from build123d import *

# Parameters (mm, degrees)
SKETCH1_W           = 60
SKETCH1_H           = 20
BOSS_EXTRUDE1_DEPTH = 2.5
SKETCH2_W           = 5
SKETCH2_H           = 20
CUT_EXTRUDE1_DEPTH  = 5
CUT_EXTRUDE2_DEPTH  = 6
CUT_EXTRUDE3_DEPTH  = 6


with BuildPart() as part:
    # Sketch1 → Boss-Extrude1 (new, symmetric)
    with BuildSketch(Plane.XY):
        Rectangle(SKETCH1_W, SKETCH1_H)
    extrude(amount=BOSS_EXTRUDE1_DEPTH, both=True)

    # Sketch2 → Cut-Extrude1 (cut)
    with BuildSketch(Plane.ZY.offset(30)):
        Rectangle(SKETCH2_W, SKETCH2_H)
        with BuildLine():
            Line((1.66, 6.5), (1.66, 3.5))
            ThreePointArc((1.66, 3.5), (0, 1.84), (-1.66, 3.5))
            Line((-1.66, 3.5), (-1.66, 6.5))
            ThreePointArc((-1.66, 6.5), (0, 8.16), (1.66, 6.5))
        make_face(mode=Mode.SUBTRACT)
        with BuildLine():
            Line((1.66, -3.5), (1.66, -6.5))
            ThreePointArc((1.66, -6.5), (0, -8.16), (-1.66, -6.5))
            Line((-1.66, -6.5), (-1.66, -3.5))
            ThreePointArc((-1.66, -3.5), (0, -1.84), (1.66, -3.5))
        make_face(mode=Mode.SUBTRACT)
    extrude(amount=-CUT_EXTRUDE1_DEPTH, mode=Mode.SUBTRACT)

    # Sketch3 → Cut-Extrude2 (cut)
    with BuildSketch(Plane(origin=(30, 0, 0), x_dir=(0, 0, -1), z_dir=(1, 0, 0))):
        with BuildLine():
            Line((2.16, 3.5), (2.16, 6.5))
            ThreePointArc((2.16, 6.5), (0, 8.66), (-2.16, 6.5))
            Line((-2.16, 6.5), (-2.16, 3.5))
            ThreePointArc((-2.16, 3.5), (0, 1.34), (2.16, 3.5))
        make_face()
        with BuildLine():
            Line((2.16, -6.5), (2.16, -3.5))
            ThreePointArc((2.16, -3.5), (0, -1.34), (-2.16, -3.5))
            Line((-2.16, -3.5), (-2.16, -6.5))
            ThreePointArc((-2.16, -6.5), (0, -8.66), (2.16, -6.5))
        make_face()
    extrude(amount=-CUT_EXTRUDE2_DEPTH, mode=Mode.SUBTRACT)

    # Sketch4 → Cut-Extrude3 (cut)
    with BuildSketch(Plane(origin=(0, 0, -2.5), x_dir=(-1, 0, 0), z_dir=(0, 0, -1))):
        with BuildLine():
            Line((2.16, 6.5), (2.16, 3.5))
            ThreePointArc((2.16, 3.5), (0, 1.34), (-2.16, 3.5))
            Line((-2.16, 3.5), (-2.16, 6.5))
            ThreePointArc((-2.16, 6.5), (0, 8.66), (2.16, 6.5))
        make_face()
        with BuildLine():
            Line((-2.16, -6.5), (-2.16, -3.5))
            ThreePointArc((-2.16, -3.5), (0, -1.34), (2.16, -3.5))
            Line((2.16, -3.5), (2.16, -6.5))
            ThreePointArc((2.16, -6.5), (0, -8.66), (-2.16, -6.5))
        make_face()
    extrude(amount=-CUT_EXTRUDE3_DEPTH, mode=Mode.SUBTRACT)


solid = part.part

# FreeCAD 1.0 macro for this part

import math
import FreeCAD as App
import Part
import Sketcher
Q = App.Units.Quantity


def add_polygon(sketch, points):
    """Adds a closed chain of lines whose ends are joined by coincident constraints."""
    first, n = sketch.GeometryCount, len(points)
    for a, b in zip(points, points[1:] + points[:1]):
        sketch.addGeometry(Part.LineSegment(App.Vector(*a, 0), App.Vector(*b, 0)), False)
    for i in range(n):
        sketch.addConstraint(Sketcher.Constraint("Coincident", first + i, 2, first + (i + 1) % n, 1))

doc = App.newDocument("Part")
params = doc.addObject("Spreadsheet::Sheet", "Params")
for row, (alias, value) in enumerate([
    ("sketch1_width", "60 mm"),
    ("sketch1_height", "20 mm"),
    ("pad1_length", "5 mm"),
    ("sketch2_width", "20 mm"),
    ("sketch2_width2", "3 mm"),
    ("sketch2_height", "5 mm"),
    ("sketch2_radius", "1.66 mm"),
    ("pocket1_length", "5 mm"),
    ("sketch3_width", "3 mm"),
    ("sketch3_radius", "2.16 mm"),
    ("pocket2_length", "6 mm"),
    ("sketch4_height", "3 mm"),
    ("sketch4_radius", "2.16 mm"),
    ("pocket3_length", "6 mm"),
], start=1):
    params.set(f"A{row}", alias)
    params.set(f"B{row}", "=" + value)
    params.setAlias(f"B{row}", alias)

body = doc.addObject("PartDesign::Body", "Body")

# Sketch on XY plane
sketch1 = body.newObject("Sketcher::SketchObject", "Sketch")
sketch1.AttachmentSupport = (doc.getObject("XY_Plane"), [""])
sketch1.MapMode = "FlatFace"
add_polygon(sketch1, [(-30, 10), (-30, -10), (30, -10), (30, 10)])  # lines 0-3
sketch1.addConstraint(Sketcher.Constraint("Vertical", 0))
sketch1.addConstraint(Sketcher.Constraint("Horizontal", 1))
sketch1.addConstraint(Sketcher.Constraint("Vertical", 2))
sketch1.addConstraint(Sketcher.Constraint("Horizontal", 3))
sketch1.addConstraint(Sketcher.Constraint("Symmetric", 0, 2, 2, 2, -1, 1))
sketch1.addConstraint(Sketcher.Constraint("DistanceX", 1, 1, 1, 2, Q("60 mm")))
sketch1.addConstraint(Sketcher.Constraint("DistanceY", 0, 2, 0, 1, Q("20 mm")))
sketch1.setExpression("Constraints[9]", "Params.sketch1_width")
sketch1.setExpression("Constraints[10]", "Params.sketch1_height")
pad1 = body.newObject("PartDesign::Pad", "Pad")
pad1.Profile = sketch1
pad1.setExpression("Length", "Params.pad1_length")
pad1.Midplane = True

# Sketch on YZ plane
sketch2 = body.newObject("Sketcher::SketchObject", "Sketch001")
sketch2.AttachmentSupport = (doc.getObject("YZ_Plane"), [""])
sketch2.MapMode = "FlatFace"
sketch2.AttachmentOffset = App.Placement(App.Vector(0, 0, -30), App.Rotation())
add_polygon(sketch2, [(10, -2.5), (-10, -2.5), (-10, 2.5), (10, 2.5)])  # lines 0-3
sketch2.addGeometry(Part.ArcOfCircle(Part.Circle(App.Vector(-3.5, 0, 0), App.Vector(0, 0, 1), 1.7), math.radians(-90), math.radians(90)), False)  # 4
sketch2.addGeometry(Part.LineSegment(App.Vector(-3.5, 1.7, 0), App.Vector(-6.5, 1.7, 0)), False)  # 5
sketch2.addGeometry(Part.ArcOfCircle(Part.Circle(App.Vector(-6.5, 0, 0), App.Vector(0, 0, 1), 1.7), math.radians(90), math.radians(270)), False)  # 6
sketch2.addGeometry(Part.LineSegment(App.Vector(-6.5, -1.7, 0), App.Vector(-3.5, -1.7, 0)), False)  # 7
sketch2.addGeometry(Part.ArcOfCircle(Part.Circle(App.Vector(6.5, 0, 0), App.Vector(0, 0, 1), 1.7), math.radians(-90), math.radians(90)), False)  # 8
sketch2.addGeometry(Part.LineSegment(App.Vector(6.5, 1.7, 0), App.Vector(3.5, 1.7, 0)), False)  # 9
sketch2.addGeometry(Part.ArcOfCircle(Part.Circle(App.Vector(3.5, 0, 0), App.Vector(0, 0, 1), 1.7), math.radians(90), math.radians(270)), False)  # 10
sketch2.addGeometry(Part.LineSegment(App.Vector(3.5, -1.7, 0), App.Vector(6.5, -1.7, 0)), False)  # 11
sketch2.addConstraint(Sketcher.Constraint("Tangent", 4, 2, 5, 1))
sketch2.addConstraint(Sketcher.Constraint("Tangent", 5, 2, 6, 1))
sketch2.addConstraint(Sketcher.Constraint("Tangent", 6, 2, 7, 1))
sketch2.addConstraint(Sketcher.Constraint("Tangent", 7, 2, 4, 1))
sketch2.addConstraint(Sketcher.Constraint("Tangent", 8, 2, 9, 1))
sketch2.addConstraint(Sketcher.Constraint("Tangent", 9, 2, 10, 1))
sketch2.addConstraint(Sketcher.Constraint("Tangent", 10, 2, 11, 1))
sketch2.addConstraint(Sketcher.Constraint("Tangent", 11, 2, 8, 1))
sketch2.addConstraint(Sketcher.Constraint("Horizontal", 0))
sketch2.addConstraint(Sketcher.Constraint("Vertical", 1))
sketch2.addConstraint(Sketcher.Constraint("Horizontal", 2))
sketch2.addConstraint(Sketcher.Constraint("Vertical", 3))
sketch2.addConstraint(Sketcher.Constraint("Horizontal", 5))
sketch2.addConstraint(Sketcher.Constraint("Horizontal", 7))
sketch2.addConstraint(Sketcher.Constraint("Horizontal", 9))
sketch2.addConstraint(Sketcher.Constraint("Horizontal", 11))
sketch2.addConstraint(Sketcher.Constraint("Equal", 6, 8))
sketch2.addConstraint(Sketcher.Constraint("Symmetric", 6, 3, 8, 3, -1, 1))
sketch2.addConstraint(Sketcher.Constraint("Symmetric", 0, 2, 2, 2, -1, 1))
sketch2.addConstraint(Sketcher.Constraint("Symmetric", 4, 3, 10, 3, -2))
sketch2.addConstraint(Sketcher.Constraint("DistanceX", 0, 2, 0, 1, Q("20 mm")))
sketch2.addConstraint(Sketcher.Constraint("DistanceX", 5, 2, 5, 1, Q("3 mm")))
sketch2.addConstraint(Sketcher.Constraint("DistanceY", 1, 1, 1, 2, Q("5 mm")))
sketch2.addConstraint(Sketcher.Constraint("Radius", 4, Q("1.66 mm")))
sketch2.addConstraint(Sketcher.Constraint("DistanceX", 4, 3, 8, 3, Q("10 mm")))
sketch2.setExpression("Constraints[24]", "Params.sketch2_width")
sketch2.setExpression("Constraints[25]", "Params.sketch2_width2")
sketch2.setExpression("Constraints[26]", "Params.sketch2_height")
sketch2.setExpression("Constraints[27]", "Params.sketch2_radius")
pocket1 = body.newObject("PartDesign::Pocket", "Pocket")
pocket1.Profile = sketch2
pocket1.setExpression("Length", "Params.pocket1_length")
pocket1.Reversed = True

# Sketch on YZ plane
sketch3 = body.newObject("Sketcher::SketchObject", "Sketch002")
sketch3.AttachmentSupport = (doc.getObject("YZ_Plane"), [""])
sketch3.MapMode = "FlatFace"
sketch3.AttachmentOffset = App.Placement(App.Vector(0, 0, 30), App.Rotation())
sketch3.addGeometry(Part.LineSegment(App.Vector(3.5, -2.2, 0), App.Vector(6.5, -2.2, 0)), False)
sketch3.addGeometry(Part.ArcOfCircle(Part.Circle(App.Vector(6.5, 0, 0), App.Vector(0, 0, 1), 2.2), math.radians(-90), math.radians(90)), False)
sketch3.addGeometry(Part.LineSegment(App.Vector(6.5, 2.2, 0), App.Vector(3.5, 2.2, 0)), False)
sketch3.addGeometry(Part.ArcOfCircle(Part.Circle(App.Vector(3.5, 0, 0), App.Vector(0, 0, 1), 2.2), math.radians(90), math.radians(270)), False)
sketch3.addGeometry(Part.LineSegment(App.Vector(-6.5, -2.2, 0), App.Vector(-3.5, -2.2, 0)), False)
sketch3.addGeometry(Part.ArcOfCircle(Part.Circle(App.Vector(-3.5, 0, 0), App.Vector(0, 0, 1), 2.2), math.radians(-90), math.radians(90)), False)
sketch3.addGeometry(Part.LineSegment(App.Vector(-3.5, 2.2, 0), App.Vector(-6.5, 2.2, 0)), False)
sketch3.addGeometry(Part.ArcOfCircle(Part.Circle(App.Vector(-6.5, 0, 0), App.Vector(0, 0, 1), 2.2), math.radians(90), math.radians(270)), False)
sketch3.addConstraint(Sketcher.Constraint("Tangent", 0, 2, 1, 1))
sketch3.addConstraint(Sketcher.Constraint("Tangent", 1, 2, 2, 1))
sketch3.addConstraint(Sketcher.Constraint("Tangent", 2, 2, 3, 1))
sketch3.addConstraint(Sketcher.Constraint("Tangent", 3, 2, 0, 1))
sketch3.addConstraint(Sketcher.Constraint("Tangent", 4, 2, 5, 1))
sketch3.addConstraint(Sketcher.Constraint("Tangent", 5, 2, 6, 1))
sketch3.addConstraint(Sketcher.Constraint("Tangent", 6, 2, 7, 1))
sketch3.addConstraint(Sketcher.Constraint("Tangent", 7, 2, 4, 1))
sketch3.addConstraint(Sketcher.Constraint("Horizontal", 0))
sketch3.addConstraint(Sketcher.Constraint("Horizontal", 2))
sketch3.addConstraint(Sketcher.Constraint("Horizontal", 4))
sketch3.addConstraint(Sketcher.Constraint("Horizontal", 6))
sketch3.addConstraint(Sketcher.Constraint("Equal", 3, 5))
sketch3.addConstraint(Sketcher.Constraint("Symmetric", 3, 3, 5, 3, -1, 1))
sketch3.addConstraint(Sketcher.Constraint("Symmetric", 1, 3, 7, 3, -2))
sketch3.addConstraint(Sketcher.Constraint("DistanceX", 0, 1, 0, 2, Q("3 mm")))
sketch3.addConstraint(Sketcher.Constraint("Radius", 1, Q("2.16 mm")))
sketch3.addConstraint(Sketcher.Constraint("DistanceX", 5, 3, 3, 3, Q("7 mm")))
sketch3.setExpression("Constraints[15]", "Params.sketch3_width")
sketch3.setExpression("Constraints[16]", "Params.sketch3_radius")
pocket2 = body.newObject("PartDesign::Pocket", "Pocket001")
pocket2.Profile = sketch3
pocket2.setExpression("Length", "Params.pocket2_length")

# Sketch on XY plane
sketch4 = body.newObject("Sketcher::SketchObject", "Sketch003")
sketch4.AttachmentSupport = (doc.getObject("XY_Plane"), [""])
sketch4.MapMode = "FlatFace"
sketch4.AttachmentOffset = App.Placement(App.Vector(0, 0, -2.5), App.Rotation())
sketch4.addGeometry(Part.LineSegment(App.Vector(-2.2, 3.5, 0), App.Vector(-2.2, 6.5, 0)), False)
sketch4.addGeometry(Part.ArcOfCircle(Part.Circle(App.Vector(0, 6.5, 0), App.Vector(0, 0, 1), 2.2), math.radians(0), math.radians(180)), False)
sketch4.addGeometry(Part.LineSegment(App.Vector(2.2, 6.5, 0), App.Vector(2.2, 3.5, 0)), False)
sketch4.addGeometry(Part.ArcOfCircle(Part.Circle(App.Vector(0, 3.5, 0), App.Vector(0, 0, 1), 2.2), math.radians(180), math.radians(360)), False)
sketch4.addGeometry(Part.LineSegment(App.Vector(2.2, -3.5, 0), App.Vector(2.2, -6.5, 0)), False)
sketch4.addGeometry(Part.ArcOfCircle(Part.Circle(App.Vector(0, -6.5, 0), App.Vector(0, 0, 1), 2.2), math.radians(180), math.radians(360)), False)
sketch4.addGeometry(Part.LineSegment(App.Vector(-2.2, -6.5, 0), App.Vector(-2.2, -3.5, 0)), False)
sketch4.addGeometry(Part.ArcOfCircle(Part.Circle(App.Vector(0, -3.5, 0), App.Vector(0, 0, 1), 2.2), math.radians(0), math.radians(180)), False)
sketch4.addConstraint(Sketcher.Constraint("Tangent", 0, 2, 1, 2))
sketch4.addConstraint(Sketcher.Constraint("Tangent", 1, 1, 2, 1))
sketch4.addConstraint(Sketcher.Constraint("Tangent", 2, 2, 3, 2))
sketch4.addConstraint(Sketcher.Constraint("Tangent", 3, 1, 0, 1))
sketch4.addConstraint(Sketcher.Constraint("Tangent", 4, 2, 5, 2))
sketch4.addConstraint(Sketcher.Constraint("Tangent", 5, 1, 6, 1))
sketch4.addConstraint(Sketcher.Constraint("Tangent", 6, 2, 7, 2))
sketch4.addConstraint(Sketcher.Constraint("Tangent", 7, 1, 4, 1))
sketch4.addConstraint(Sketcher.Constraint("Vertical", 0))
sketch4.addConstraint(Sketcher.Constraint("Vertical", 2))
sketch4.addConstraint(Sketcher.Constraint("Vertical", 4))
sketch4.addConstraint(Sketcher.Constraint("Vertical", 6))
sketch4.addConstraint(Sketcher.Constraint("Equal", 3, 5))
sketch4.addConstraint(Sketcher.Constraint("Symmetric", 1, 3, 5, 3, -1, 1))
sketch4.addConstraint(Sketcher.Constraint("Symmetric", 3, 3, 7, 3, -1))
sketch4.addConstraint(Sketcher.Constraint("DistanceY", 0, 1, 0, 2, Q("3 mm")))
sketch4.addConstraint(Sketcher.Constraint("Radius", 1, Q("2.16 mm")))
sketch4.addConstraint(Sketcher.Constraint("DistanceY", 5, 3, 3, 3, Q("10 mm")))
sketch4.setExpression("Constraints[15]", "Params.sketch4_height")
sketch4.setExpression("Constraints[16]", "Params.sketch4_radius")
pocket3 = body.newObject("PartDesign::Pocket", "Pocket002")
pocket3.Profile = sketch4
pocket3.setExpression("Length", "Params.pocket3_length")
pocket3.Reversed = True

doc.recompute()
